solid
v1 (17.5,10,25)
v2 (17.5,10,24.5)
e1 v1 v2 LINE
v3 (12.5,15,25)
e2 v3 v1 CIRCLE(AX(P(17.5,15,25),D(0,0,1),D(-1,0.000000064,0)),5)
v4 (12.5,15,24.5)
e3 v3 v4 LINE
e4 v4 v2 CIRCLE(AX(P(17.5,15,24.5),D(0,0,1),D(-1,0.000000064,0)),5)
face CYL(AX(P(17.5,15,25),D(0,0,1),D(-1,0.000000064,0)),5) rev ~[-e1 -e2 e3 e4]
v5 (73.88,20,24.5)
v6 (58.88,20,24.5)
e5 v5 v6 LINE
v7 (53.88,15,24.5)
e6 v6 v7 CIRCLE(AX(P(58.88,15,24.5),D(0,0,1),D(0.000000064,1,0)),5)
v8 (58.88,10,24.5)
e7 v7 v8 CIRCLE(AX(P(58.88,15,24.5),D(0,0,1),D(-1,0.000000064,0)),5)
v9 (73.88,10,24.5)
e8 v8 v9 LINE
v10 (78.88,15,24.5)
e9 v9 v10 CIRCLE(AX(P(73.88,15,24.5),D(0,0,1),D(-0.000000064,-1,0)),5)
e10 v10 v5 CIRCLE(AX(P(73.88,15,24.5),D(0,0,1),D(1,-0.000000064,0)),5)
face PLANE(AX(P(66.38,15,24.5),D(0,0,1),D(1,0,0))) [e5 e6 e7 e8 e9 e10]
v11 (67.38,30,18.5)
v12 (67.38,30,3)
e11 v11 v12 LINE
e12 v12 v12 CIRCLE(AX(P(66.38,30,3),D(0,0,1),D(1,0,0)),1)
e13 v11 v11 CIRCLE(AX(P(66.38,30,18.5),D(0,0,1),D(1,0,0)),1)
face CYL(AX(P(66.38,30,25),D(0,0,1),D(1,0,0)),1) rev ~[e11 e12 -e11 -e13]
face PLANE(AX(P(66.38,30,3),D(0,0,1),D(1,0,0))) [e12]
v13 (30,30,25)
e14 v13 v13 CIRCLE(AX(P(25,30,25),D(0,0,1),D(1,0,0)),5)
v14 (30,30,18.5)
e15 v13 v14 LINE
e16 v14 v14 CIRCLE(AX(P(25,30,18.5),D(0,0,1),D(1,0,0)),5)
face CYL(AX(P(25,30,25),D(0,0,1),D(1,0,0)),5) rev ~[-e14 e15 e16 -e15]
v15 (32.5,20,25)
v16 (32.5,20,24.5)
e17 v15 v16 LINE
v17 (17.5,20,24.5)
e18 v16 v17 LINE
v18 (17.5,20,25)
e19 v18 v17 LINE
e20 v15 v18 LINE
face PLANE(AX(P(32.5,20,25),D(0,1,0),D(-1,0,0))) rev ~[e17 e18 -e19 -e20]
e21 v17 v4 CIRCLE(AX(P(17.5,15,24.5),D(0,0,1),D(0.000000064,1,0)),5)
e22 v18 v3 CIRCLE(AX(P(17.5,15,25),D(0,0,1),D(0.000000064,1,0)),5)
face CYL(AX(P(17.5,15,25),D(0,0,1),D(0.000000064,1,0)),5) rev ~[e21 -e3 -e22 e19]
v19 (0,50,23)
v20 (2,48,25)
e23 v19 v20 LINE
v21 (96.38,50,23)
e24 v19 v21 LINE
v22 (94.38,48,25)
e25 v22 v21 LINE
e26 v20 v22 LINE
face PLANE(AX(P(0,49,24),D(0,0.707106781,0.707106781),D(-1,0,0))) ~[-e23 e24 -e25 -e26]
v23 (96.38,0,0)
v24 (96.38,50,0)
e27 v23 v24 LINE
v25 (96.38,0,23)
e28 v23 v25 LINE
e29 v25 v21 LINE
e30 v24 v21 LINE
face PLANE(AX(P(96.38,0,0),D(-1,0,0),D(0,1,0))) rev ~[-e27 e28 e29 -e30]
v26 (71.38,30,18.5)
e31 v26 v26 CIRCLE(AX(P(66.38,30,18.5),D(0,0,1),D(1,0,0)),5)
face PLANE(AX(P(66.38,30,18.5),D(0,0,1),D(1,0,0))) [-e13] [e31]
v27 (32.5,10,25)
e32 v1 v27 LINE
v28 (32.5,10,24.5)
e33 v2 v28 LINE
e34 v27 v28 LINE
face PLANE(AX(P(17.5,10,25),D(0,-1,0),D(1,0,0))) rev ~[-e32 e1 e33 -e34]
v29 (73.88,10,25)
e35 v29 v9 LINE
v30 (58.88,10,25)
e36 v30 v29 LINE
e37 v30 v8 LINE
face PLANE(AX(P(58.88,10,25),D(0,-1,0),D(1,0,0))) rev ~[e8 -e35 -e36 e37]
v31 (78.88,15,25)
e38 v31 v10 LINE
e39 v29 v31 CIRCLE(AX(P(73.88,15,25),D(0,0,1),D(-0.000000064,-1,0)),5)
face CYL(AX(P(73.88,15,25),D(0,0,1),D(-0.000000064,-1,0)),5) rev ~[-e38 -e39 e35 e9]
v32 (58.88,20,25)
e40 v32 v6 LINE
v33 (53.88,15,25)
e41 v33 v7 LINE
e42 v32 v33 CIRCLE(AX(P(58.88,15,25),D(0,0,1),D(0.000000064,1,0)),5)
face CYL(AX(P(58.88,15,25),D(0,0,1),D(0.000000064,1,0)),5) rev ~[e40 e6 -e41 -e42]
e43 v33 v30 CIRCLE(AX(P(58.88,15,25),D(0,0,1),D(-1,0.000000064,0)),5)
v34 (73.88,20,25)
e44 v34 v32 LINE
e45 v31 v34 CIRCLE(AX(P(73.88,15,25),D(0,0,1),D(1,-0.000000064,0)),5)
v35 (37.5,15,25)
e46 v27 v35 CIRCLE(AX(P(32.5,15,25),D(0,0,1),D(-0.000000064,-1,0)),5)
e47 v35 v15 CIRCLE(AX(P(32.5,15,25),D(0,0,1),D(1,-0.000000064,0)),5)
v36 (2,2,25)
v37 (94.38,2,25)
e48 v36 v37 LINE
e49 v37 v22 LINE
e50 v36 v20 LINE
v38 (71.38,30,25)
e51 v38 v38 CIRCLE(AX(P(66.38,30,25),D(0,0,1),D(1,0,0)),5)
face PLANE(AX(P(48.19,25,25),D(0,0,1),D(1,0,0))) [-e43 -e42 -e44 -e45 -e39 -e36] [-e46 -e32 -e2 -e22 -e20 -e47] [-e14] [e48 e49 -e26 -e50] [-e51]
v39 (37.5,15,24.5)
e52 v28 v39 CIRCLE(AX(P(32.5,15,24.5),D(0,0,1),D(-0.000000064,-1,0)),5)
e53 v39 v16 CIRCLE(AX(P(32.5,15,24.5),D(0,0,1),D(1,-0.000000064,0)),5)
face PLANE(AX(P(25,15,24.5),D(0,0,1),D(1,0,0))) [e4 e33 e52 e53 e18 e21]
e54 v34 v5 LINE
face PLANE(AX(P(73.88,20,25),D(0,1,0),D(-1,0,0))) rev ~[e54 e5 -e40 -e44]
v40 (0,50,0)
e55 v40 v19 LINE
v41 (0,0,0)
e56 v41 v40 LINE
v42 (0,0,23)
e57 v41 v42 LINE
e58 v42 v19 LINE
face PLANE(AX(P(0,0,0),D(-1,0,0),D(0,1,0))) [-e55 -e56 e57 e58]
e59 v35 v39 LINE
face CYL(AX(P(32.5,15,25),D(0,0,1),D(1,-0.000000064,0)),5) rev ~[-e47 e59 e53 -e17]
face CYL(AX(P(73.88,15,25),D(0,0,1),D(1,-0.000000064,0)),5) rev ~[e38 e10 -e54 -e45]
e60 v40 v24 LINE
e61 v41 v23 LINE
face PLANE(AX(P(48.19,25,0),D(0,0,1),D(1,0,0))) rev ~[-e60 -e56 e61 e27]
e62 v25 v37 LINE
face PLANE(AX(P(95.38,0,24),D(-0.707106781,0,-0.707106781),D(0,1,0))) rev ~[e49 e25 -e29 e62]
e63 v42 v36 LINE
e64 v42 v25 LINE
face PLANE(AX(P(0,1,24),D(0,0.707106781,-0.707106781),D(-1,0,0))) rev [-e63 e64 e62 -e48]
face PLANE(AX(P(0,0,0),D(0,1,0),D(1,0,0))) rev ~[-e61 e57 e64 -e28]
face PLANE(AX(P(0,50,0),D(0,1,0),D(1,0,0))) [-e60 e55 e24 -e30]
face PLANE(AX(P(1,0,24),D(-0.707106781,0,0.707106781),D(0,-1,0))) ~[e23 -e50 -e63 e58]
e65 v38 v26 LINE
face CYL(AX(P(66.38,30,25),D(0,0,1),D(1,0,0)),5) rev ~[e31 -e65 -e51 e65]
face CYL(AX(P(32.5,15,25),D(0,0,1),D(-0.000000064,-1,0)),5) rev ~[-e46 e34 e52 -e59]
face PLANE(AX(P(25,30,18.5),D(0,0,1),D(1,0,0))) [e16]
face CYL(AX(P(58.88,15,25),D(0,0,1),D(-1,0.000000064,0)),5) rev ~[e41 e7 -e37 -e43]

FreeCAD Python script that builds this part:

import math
import FreeCAD as App
import Part
import Sketcher

V = App.Vector


def edges_at(feature, points):
    """Names of the edges that pass closest to the given points."""
    edges = feature.Shape.Edges
    near = lambda p: min(range(len(edges)), key=lambda i: edges[i].distToShape(Part.Vertex(*p))[0])
    return sorted({f"Edge{near(p) + 1}" for p in points})

doc = App.newDocument("Part")
params = doc.addObject("Spreadsheet::Sheet", "Params")
for row, (alias, value) in enumerate([
    ("sketch1_height", "50 mm"),
    ("sketch1_width", "96.38 mm"),
    ("pad1_length", "25 mm"),
    ("sketch2_diameter", "10 mm"),
    ("pocket1_length", "6.5 mm"),
    ("sketch3_diameter", "2 mm"),
    ("pocket2_length", "22 mm"),
    ("chamfer_size", "2 mm"),
    ("sketch4_radius", "5 mm"),
    ("sketch4_width", "15 mm"),
    ("pocket3_length", "0.5 mm"),
], start=1):
    params.set(f"A{row}", alias)
    params.set(f"B{row}", "=" + value)
    params.setAlias(f"B{row}", alias)

body = doc.addObject("PartDesign::Body", "Body")

sketch1 = body.newObject("Sketcher::SketchObject", "Sketch")
sketch1.AttachmentSupport = (doc.getObject("XY_Plane"), [""])
sketch1.MapMode = "FlatFace"
sketch1.addGeometry([
    Part.LineSegment(V(0, 50, 0), V(0, 0, 0)),
    Part.LineSegment(V(0, 0, 0), V(96, 0, 0)),
    Part.LineSegment(V(96, 0, 0), V(96, 50, 0)),
    Part.LineSegment(V(96, 50, 0), V(0, 50, 0)),
], False)
sketch1.addConstraint([
    Sketcher.Constraint("Coincident", 0, 2, 1, 1),
    Sketcher.Constraint("Coincident", 1, 2, 2, 1),
    Sketcher.Constraint("Coincident", 2, 2, 3, 1),
    Sketcher.Constraint("Coincident", 3, 2, 0, 1),
    Sketcher.Constraint("Vertical", 0),
    Sketcher.Constraint("Horizontal", 1),
    Sketcher.Constraint("Vertical", 2),
    Sketcher.Constraint("Horizontal", 3),
    Sketcher.Constraint("Coincident", 0, 2, -1, 1),
    Sketcher.Constraint("DistanceY", 0, 2, 0, 1, 50.0),
    Sketcher.Constraint("DistanceX", 1, 1, 1, 2, 96.38),
])
sketch1.setExpression("Constraints[9]", "Params.sketch1_height")
sketch1.setExpression("Constraints[10]", "Params.sketch1_width")
pad1 = body.newObject("PartDesign::Pad", "Pad")
pad1.Profile = sketch1
pad1.setExpression("Length", "Params.pad1_length")

sketch2 = body.newObject("Sketcher::SketchObject", "Sketch001")
sketch2.AttachmentSupport = (doc.getObject("XY_Plane"), [""])
sketch2.MapMode = "FlatFace"
sketch2.AttachmentOffset = App.Placement(V(0, 0, 25), App.Rotation())
sketch2.addGeometry([
    Part.Circle(V(25, 30, 0), V(0, 0, 1), 5),
    Part.Circle(V(66, 30, 0), V(0, 0, 1), 5),
], False)
sketch2.addConstraint([
    Sketcher.Constraint("Equal", 0, 1),
    Sketcher.Constraint("Horizontal", 0, 3, 1, 3),
    Sketcher.Constraint("Diameter", 0, 10.0),
    Sketcher.Constraint("DistanceX", -1, 1, 0, 3, 25.0),
    Sketcher.Constraint("DistanceY", -1, 1, 0, 3, 30.0),
    Sketcher.Constraint("DistanceX", -1, 1, 1, 3, 66.38),
])
sketch2.setExpression("Constraints[2]", "Params.sketch2_diameter")
pocket1 = body.newObject("PartDesign::Pocket", "Pocket")
pocket1.Profile = sketch2
pocket1.setExpression("Length", "Params.pocket1_length")

sketch3 = body.newObject("Sketcher::SketchObject", "Sketch002")
sketch3.AttachmentSupport = (doc.getObject("XY_Plane"), [""])
sketch3.MapMode = "FlatFace"
sketch3.AttachmentOffset = App.Placement(V(0, 0, 25), App.Rotation())
sketch3.addGeometry(Part.Circle(V(66.4, 30, 0), V(0, 0, 1), 1), False)
sketch3.addConstraint([
    Sketcher.Constraint("Diameter", 0, 2.0),
    Sketcher.Constraint("DistanceY", -1, 1, 0, 3, 30.0),
    Sketcher.Constraint("DistanceX", -1, 1, 0, 3, 66.38),
])
sketch3.setExpression("Constraints[0]", "Params.sketch3_diameter")
pocket2 = body.newObject("PartDesign::Pocket", "Pocket001")
pocket2.Profile = sketch3
pocket2.setExpression("Length", "Params.pocket2_length")
doc.recompute()

chamfer = body.newObject("PartDesign::Chamfer", "Chamfer")
chamfer.Base = (pocket2, edges_at(pocket2, [
    (48.19, 0, 25),
    (96.38, 25, 25),
    (0, 25, 25),
    (48.19, 50, 25),
]))
chamfer.setExpression("Size", "Params.chamfer_size")

sketch4 = body.newObject("Sketcher::SketchObject", "Sketch003")
sketch4.AttachmentSupport = (doc.getObject("XY_Plane"), [""])
sketch4.MapMode = "FlatFace"
sketch4.AttachmentOffset = App.Placement(V(0, 0, 25), App.Rotation())
sketch4.addGeometry([
    Part.LineSegment(V(32.5, 20, 0), V(17.5, 20, 0)),
    Part.ArcOfCircle(Part.Circle(V(17.5, 15, 0), V(0, 0, 1), 5), math.radians(90), math.radians(180)),
    Part.ArcOfCircle(Part.Circle(V(17.5, 15, 0), V(0, 0, 1), 5), math.radians(180), math.radians(270)),
    Part.LineSegment(V(17.5, 10, 0), V(32.5, 10, 0)),
    Part.ArcOfCircle(Part.Circle(V(32.5, 15, 0), V(0, 0, 1), 5), math.radians(-90), math.radians(0)),
    Part.ArcOfCircle(Part.Circle(V(32.5, 15, 0), V(0, 0, 1), 5), math.radians(0), math.radians(90)),
    Part.LineSegment(V(73.9, 20, 0), V(58.9, 20, 0)),
    Part.ArcOfCircle(Part.Circle(V(58.9, 15, 0), V(0, 0, 1), 5), math.radians(90), math.radians(180)),
    Part.ArcOfCircle(Part.Circle(V(58.9, 15, 0), V(0, 0, 1), 5), math.radians(180), math.radians(270)),
    Part.LineSegment(V(58.9, 10, 0), V(73.9, 10, 0)),
    Part.ArcOfCircle(Part.Circle(V(73.9, 15, 0), V(0, 0, 1), 5), math.radians(-90), math.radians(0)),
    Part.ArcOfCircle(Part.Circle(V(73.9, 15, 0), V(0, 0, 1), 5), math.radians(0), math.radians(90)),
], False)
sketch4.addConstraint([
    Sketcher.Constraint("Tangent", 0, 2, 1, 1),
    Sketcher.Constraint("Tangent", 1, 2, 2, 1),
    Sketcher.Constraint("Tangent", 2, 2, 3, 1),
    Sketcher.Constraint("Tangent", 3, 2, 4, 1),
    Sketcher.Constraint("Tangent", 4, 2, 5, 1),
    Sketcher.Constraint("Tangent", 5, 2, 0, 1),
    Sketcher.Constraint("Tangent", 6, 2, 7, 1),
    Sketcher.Constraint("Tangent", 7, 2, 8, 1),
    Sketcher.Constraint("Tangent", 8, 2, 9, 1),
    Sketcher.Constraint("Tangent", 9, 2, 10, 1),
    Sketcher.Constraint("Tangent", 10, 2, 11, 1),
    Sketcher.Constraint("Tangent", 11, 2, 6, 1),
    Sketcher.Constraint("Horizontal", 0),
    Sketcher.Constraint("Horizontal", 3),
    Sketcher.Constraint("Horizontal", 6),
    Sketcher.Constraint("Horizontal", 9),
    Sketcher.Constraint("Equal", 1, 2),
    Sketcher.Constraint("Equal", 2, 4),
    Sketcher.Constraint("Equal", 5, 7),
    Sketcher.Constraint("Equal", 7, 8),
    Sketcher.Constraint("Equal", 8, 10),
    Sketcher.Constraint("Horizontal", 5, 3, 7, 3),
    Sketcher.Constraint("Horizontal", 11, 3, 1, 2),
    Sketcher.Constraint("Horizontal", 1, 2, 4, 2),
    Sketcher.Constraint("Horizontal", 4, 2, 7, 2),
    Sketcher.Constraint("Horizontal", 7, 2, 10, 2),
    Sketcher.Constraint("Equal", 3, 6),
    Sketcher.Constraint("Radius", 1, 5.0),
    Sketcher.Constraint("DistanceX", 0, 2, 0, 1, 15.0),
    Sketcher.Constraint("DistanceY", -1, 1, 1, 3, 15.0),
    Sketcher.Constraint("DistanceX", -1, 1, 1, 3, 17.5),
    Sketcher.Constraint("DistanceX", -1, 1, 7, 3, 58.88),
])
sketch4.setExpression("Constraints[27]", "Params.sketch4_radius")
sketch4.setExpression("Constraints[28]", "Params.sketch4_width")
pocket3 = body.newObject("PartDesign::Pocket", "Pocket002")
pocket3.Profile = sketch4
pocket3.setExpression("Length", "Params.pocket3_length")

doc.recompute()
